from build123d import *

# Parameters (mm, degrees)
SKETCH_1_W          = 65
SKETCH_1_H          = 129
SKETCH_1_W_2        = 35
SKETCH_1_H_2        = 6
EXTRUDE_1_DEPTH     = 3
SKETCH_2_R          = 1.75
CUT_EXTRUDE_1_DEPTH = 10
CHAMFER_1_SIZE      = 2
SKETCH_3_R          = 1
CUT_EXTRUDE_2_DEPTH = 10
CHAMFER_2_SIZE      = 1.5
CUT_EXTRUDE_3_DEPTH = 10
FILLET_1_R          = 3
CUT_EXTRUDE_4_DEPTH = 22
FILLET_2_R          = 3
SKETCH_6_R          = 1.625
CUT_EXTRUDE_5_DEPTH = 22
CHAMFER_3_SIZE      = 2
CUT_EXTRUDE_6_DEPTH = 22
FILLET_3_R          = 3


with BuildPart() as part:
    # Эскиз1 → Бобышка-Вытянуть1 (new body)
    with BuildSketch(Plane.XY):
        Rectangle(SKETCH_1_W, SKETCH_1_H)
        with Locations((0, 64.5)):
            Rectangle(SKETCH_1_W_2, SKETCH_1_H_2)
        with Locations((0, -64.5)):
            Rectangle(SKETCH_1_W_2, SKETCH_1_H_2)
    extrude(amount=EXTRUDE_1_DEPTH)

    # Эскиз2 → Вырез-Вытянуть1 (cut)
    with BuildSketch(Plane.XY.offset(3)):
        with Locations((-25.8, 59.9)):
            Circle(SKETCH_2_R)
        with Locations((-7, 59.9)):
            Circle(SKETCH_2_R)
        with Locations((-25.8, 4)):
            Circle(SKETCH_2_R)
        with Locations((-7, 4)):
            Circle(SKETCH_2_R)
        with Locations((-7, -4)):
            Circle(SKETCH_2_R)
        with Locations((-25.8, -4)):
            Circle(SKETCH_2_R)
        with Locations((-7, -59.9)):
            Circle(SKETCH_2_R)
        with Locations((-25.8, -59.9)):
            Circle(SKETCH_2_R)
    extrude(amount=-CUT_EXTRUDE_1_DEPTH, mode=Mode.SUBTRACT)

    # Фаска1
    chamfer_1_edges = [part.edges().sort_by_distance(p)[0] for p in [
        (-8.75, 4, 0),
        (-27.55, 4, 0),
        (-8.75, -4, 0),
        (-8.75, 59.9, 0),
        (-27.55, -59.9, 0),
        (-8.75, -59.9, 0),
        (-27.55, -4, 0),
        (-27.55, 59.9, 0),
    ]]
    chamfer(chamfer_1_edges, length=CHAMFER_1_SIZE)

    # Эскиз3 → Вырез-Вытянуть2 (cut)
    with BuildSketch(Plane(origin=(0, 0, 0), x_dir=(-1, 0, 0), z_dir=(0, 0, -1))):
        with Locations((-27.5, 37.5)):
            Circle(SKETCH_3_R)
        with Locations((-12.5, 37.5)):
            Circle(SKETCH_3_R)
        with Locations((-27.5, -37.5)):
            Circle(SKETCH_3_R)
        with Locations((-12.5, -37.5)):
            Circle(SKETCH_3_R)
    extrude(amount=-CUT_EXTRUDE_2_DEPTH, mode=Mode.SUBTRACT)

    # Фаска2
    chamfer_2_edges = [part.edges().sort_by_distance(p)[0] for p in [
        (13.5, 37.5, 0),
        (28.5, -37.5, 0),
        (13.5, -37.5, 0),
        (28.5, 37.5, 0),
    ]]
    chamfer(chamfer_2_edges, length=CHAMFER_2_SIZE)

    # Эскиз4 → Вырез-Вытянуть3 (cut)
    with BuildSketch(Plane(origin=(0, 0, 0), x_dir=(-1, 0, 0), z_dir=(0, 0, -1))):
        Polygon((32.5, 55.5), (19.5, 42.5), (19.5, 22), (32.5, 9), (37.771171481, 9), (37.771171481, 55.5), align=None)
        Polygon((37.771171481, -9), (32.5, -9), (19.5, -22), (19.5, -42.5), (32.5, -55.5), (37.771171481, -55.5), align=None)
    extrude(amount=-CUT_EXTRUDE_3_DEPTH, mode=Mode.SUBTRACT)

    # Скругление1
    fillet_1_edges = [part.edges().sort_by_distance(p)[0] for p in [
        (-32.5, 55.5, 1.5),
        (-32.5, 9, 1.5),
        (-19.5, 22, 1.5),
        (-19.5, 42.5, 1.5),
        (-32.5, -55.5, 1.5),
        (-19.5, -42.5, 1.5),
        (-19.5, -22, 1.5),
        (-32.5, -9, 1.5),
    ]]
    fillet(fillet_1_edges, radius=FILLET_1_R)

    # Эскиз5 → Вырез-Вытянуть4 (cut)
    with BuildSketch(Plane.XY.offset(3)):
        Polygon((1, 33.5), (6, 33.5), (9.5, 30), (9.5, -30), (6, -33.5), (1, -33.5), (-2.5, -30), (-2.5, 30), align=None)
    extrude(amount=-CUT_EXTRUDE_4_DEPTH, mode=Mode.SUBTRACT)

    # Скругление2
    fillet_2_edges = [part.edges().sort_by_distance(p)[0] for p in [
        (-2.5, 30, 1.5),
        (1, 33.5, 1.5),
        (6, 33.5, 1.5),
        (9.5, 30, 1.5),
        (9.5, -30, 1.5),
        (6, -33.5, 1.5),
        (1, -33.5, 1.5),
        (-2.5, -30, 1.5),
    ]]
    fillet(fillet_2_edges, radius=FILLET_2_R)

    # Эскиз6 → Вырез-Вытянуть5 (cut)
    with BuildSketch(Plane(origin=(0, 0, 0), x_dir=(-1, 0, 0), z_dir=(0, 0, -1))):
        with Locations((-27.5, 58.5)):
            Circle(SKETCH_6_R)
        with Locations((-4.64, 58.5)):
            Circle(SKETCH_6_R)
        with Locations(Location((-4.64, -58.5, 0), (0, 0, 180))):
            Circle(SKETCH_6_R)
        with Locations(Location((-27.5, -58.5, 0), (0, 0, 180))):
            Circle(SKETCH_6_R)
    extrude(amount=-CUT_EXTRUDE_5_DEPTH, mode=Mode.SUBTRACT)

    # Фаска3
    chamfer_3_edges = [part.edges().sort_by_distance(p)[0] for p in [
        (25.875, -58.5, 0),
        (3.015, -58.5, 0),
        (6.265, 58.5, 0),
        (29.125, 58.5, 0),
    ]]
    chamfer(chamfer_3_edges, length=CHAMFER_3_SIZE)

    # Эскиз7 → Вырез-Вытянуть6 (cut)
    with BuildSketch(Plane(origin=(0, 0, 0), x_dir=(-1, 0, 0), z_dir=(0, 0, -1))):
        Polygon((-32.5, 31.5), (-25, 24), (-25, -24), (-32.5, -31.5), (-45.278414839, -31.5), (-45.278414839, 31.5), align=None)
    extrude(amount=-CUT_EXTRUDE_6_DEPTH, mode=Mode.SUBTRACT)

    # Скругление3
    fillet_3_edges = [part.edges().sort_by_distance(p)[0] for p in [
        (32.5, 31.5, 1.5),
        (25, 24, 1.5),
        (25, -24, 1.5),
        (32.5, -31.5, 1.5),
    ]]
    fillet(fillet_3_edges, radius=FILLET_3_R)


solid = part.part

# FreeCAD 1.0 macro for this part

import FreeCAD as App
import Part
import Sketcher

V = App.Vector


def edges_at(feature, points):
    """Names of the edges that pass closest to the given points."""
    edges = feature.Shape.Edges
    near = lambda p: min(range(len(edges)), key=lambda i: edges[i].distToShape(Part.Vertex(*p))[0])
    return sorted({f"Edge{near(p) + 1}" for p in points})


def add_polygon(sketch, points):
    """Adds a closed chain of lines whose ends are joined by coincident constraints."""
    first, n = sketch.GeometryCount, len(points)
    for a, b in zip(points, points[1:] + points[:1]):
        sketch.addGeometry(Part.LineSegment(App.Vector(*a, 0), App.Vector(*b, 0)), False)
    for i in range(n):
        sketch.addConstraint(Sketcher.Constraint("Coincident", first + i, 2, first + (i + 1) % n, 1))

doc = App.newDocument("Part")
body = doc.addObject("PartDesign::Body", "Body")

sketch1 = doc.addObject("Sketcher::SketchObject", "Sketch")
body.addObject(sketch1)
sketch1.AttachmentSupport = (doc.XY_Plane, [""])
sketch1.MapMode = "FlatFace"
add_polygon(sketch1, [(-32.5, 64.5), (-32.5, -64.5), (-17.5, -64.5), (-17.5, -67.5), (17.5, -67.5), (17.5, -64.5), (32.5, -64.5), (32.5, 64.5), (17.5, 64.5), (17.5, 67.5), (-17.5, 67.5), (-17.5, 64.5)])
sketch1.addConstraint([
    Sketcher.Constraint("Vertical", 0),
    Sketcher.Constraint("Horizontal", 1),
    Sketcher.Constraint("Vertical", 2),
    Sketcher.Constraint("Horizontal", 3),
    Sketcher.Constraint("Vertical", 4),
    Sketcher.Constraint("Horizontal", 5),
    Sketcher.Constraint("Vertical", 6),
    Sketcher.Constraint("Horizontal", 7),
    Sketcher.Constraint("Vertical", 8),
    Sketcher.Constraint("Horizontal", 9),
    Sketcher.Constraint("Vertical", 10),
    Sketcher.Constraint("Horizontal", 11),
    Sketcher.Constraint("Symmetric", 0, 2, 6, 2, -1, 1),
    Sketcher.Constraint("Symmetric", 2, 2, 8, 2, -1, 1),
    Sketcher.Constraint("Symmetric", 4, 2, 10, 2, -1, 1),
    Sketcher.Constraint("Symmetric", 1, 2, 4, 2, -2),
    Sketcher.Constraint("DistanceX", 1, 1, 1, 2, 15.0),
    Sketcher.Constraint("DistanceX", 3, 1, 3, 2, 35.0),
    Sketcher.Constraint("DistanceY", 0, 2, 0, 1, 129.0),
    Sketcher.Constraint("DistanceY", 2, 2, 2, 1, 3.0),
])
pad1 = doc.addObject("PartDesign::Pad", "Pad")
body.addObject(pad1)
pad1.Profile = sketch1
pad1.Length = 3

sketch2 = doc.addObject("Sketcher::SketchObject", "Sketch001")
body.addObject(sketch2)
sketch2.AttachmentSupport = (doc.XY_Plane, [""])
sketch2.MapMode = "FlatFace"
sketch2.AttachmentOffset = App.Placement(V(0, 0, 3), App.Rotation())
sketch2.addGeometry([
    Part.Circle(V(-25.8, 59.9, 0), V(0, 0, 1), 1.8),
    Part.Circle(V(-7, 59.9, 0), V(0, 0, 1), 1.8),
    Part.Circle(V(-25.8, 4, 0), V(0, 0, 1), 1.8),
    Part.Circle(V(-7, 4, 0), V(0, 0, 1), 1.8),
    Part.Circle(V(-7, -4, 0), V(0, 0, 1), 1.8),
    Part.Circle(V(-25.8, -4, 0), V(0, 0, 1), 1.8),
    Part.Circle(V(-7, -59.9, 0), V(0, 0, 1), 1.8),
    Part.Circle(V(-25.8, -59.9, 0), V(0, 0, 1), 1.8),
], False)
sketch2.addConstraint([
    Sketcher.Constraint("Equal", 0, 1),
    Sketcher.Constraint("Equal", 1, 2),
    Sketcher.Constraint("Equal", 2, 3),
    Sketcher.Constraint("Equal", 3, 4),
    Sketcher.Constraint("Equal", 4, 5),
    Sketcher.Constraint("Equal", 5, 6),
    Sketcher.Constraint("Equal", 6, 7),
    Sketcher.Constraint("Symmetric", 3, 3, 4, 3, -1),
    Sketcher.Constraint("Symmetric", 2, 3, 5, 3, -1),
    Sketcher.Constraint("Symmetric", 1, 3, 6, 3, -1),
    Sketcher.Constraint("Symmetric", 0, 3, 7, 3, -1),
    Sketcher.Constraint("Horizontal", 0, 3, 1, 3),
    Sketcher.Constraint("Horizontal", 2, 3, 3, 3),
    Sketcher.Constraint("Vertical", 0, 3, 2, 3),
    Sketcher.Constraint("Vertical", 1, 3, 3, 3),
    Sketcher.Constraint("Diameter", 0, 3.5),
    Sketcher.Constraint("DistanceX", 1, 3, -1, 1, 7.0),
    Sketcher.Constraint("DistanceY", -1, 1, 2, 3, 4.0),
    Sketcher.Constraint("DistanceX", 0, 3, -1, 1, 25.8),
    Sketcher.Constraint("DistanceY", -1, 1, 0, 3, 59.9),
])
pocket1 = doc.addObject("PartDesign::Pocket", "Pocket")
body.addObject(pocket1)
pocket1.Profile = sketch2
pocket1.Length = 10
doc.recompute()

chamfer = doc.addObject("PartDesign::Chamfer", "Chamfer")
body.addObject(chamfer)
chamfer.Base = (pocket1, edges_at(pocket1, [
    (-8.75, 4, 0),
    (-27.55, 4, 0),
    (-8.75, -4, 0),
    (-8.75, 59.9, 0),
    (-27.55, -59.9, 0),
    (-8.75, -59.9, 0),
    (-27.55, -4, 0),
    (-27.55, 59.9, 0),
]))
chamfer.Size = 2

sketch3 = doc.addObject("Sketcher::SketchObject", "Sketch002")
body.addObject(sketch3)
sketch3.AttachmentSupport = (doc.XY_Plane, [""])
sketch3.MapMode = "FlatFace"
sketch3.addGeometry([
    Part.Circle(V(27.5, 37.5, 0), V(0, 0, 1), 1),
    Part.Circle(V(12.5, 37.5, 0), V(0, 0, 1), 1),
    Part.Circle(V(27.5, -37.5, 0), V(0, 0, 1), 1),
    Part.Circle(V(12.5, -37.5, 0), V(0, 0, 1), 1),
], False)
sketch3.addConstraint([
    Sketcher.Constraint("Equal", 0, 1),
    Sketcher.Constraint("Equal", 1, 2),
    Sketcher.Constraint("Equal", 2, 3),
    Sketcher.Constraint("Symmetric", 0, 3, 2, 3, -1),
    Sketcher.Constraint("Symmetric", 1, 3, 3, 3, -1),
    Sketcher.Constraint("Horizontal", 0, 3, 1, 3),
    Sketcher.Constraint("Diameter", 0, 2.0),
    Sketcher.Constraint("DistanceX", 1, 3, 0, 3, 15.0),
    Sketcher.Constraint("DistanceY", 2, 3, 0, 3, 75.0),
    Sketcher.Constraint("DistanceX", -1, 1, 0, 3, 27.5),
])
pocket2 = doc.addObject("PartDesign::Pocket", "Pocket001")
body.addObject(pocket2)
pocket2.Profile = sketch3
pocket2.Length = 10
pocket2.Reversed = True
doc.recompute()

chamfer2 = doc.addObject("PartDesign::Chamfer", "Chamfer001")
body.addObject(chamfer2)
chamfer2.Base = (pocket2, edges_at(pocket2, [
    (13.5, 37.5, 0),
    (28.5, -37.5, 0),
    (13.5, -37.5, 0),
    (28.5, 37.5, 0),
]))
chamfer2.Size = 1.5

sketch4 = doc.addObject("Sketcher::SketchObject", "Sketch003")
body.addObject(sketch4)
sketch4.AttachmentSupport = (doc.XY_Plane, [""])
sketch4.MapMode = "FlatFace"
add_polygon(sketch4, [(-32, 56), (-20, 42), (-20, 22), (-32, 9), (-38, 9), (-38, 56)])
add_polygon(sketch4, [(-38, -9), (-32, -9), (-20, -22), (-20, -42), (-32, -56), (-38, -56)])
sketch4.addConstraint([
    Sketcher.Constraint("Vertical", 1),
    Sketcher.Constraint("Horizontal", 3),
    Sketcher.Constraint("Vertical", 4),
    Sketcher.Constraint("Horizontal", 5),
    Sketcher.Constraint("Horizontal", 6),
    Sketcher.Constraint("Vertical", 8),
    Sketcher.Constraint("Horizontal", 10),
    Sketcher.Constraint("Vertical", 11),
    Sketcher.Constraint("Symmetric", 2, 2, 6, 2, -1),
    Sketcher.Constraint("Symmetric", 1, 2, 7, 2, -1),
    Sketcher.Constraint("Symmetric", 5, 2, 9, 2, -1),
    Sketcher.Constraint("Perpendicular", 0, 2),
    Sketcher.Constraint("Perpendicular", 2, 7),
    Sketcher.Constraint("Perpendicular", 7, 9),
    Sketcher.Constraint("Vertical", 2, 2, 5, 2),
    Sketcher.Constraint("Vertical", 4, 2, 10, 2),
    Sketcher.Constraint("DistanceY", 1, 2, 1, 1, 20.5),
    Sketcher.Constraint("DistanceY", 4, 1, 4, 2, 46.5),
    Sketcher.Constraint("DistanceY", -1, 1, 1, 2, 22.0),
    Sketcher.Constraint("DistanceX", 0, 2, -1, 1, 19.5),
    Sketcher.Constraint("DistanceX", 3, 2, 3, 1, 5.271171),
])
pocket3 = doc.addObject("PartDesign::Pocket", "Pocket002")
body.addObject(pocket3)
pocket3.Profile = sketch4
pocket3.Length = 10
pocket3.Reversed = True
doc.recompute()

fillet = doc.addObject("PartDesign::Fillet", "Fillet")
body.addObject(fillet)
fillet.Base = (pocket3, edges_at(pocket3, [
    (-32.5, 55.5, 1.5),
    (-32.5, 9, 1.5),
    (-19.5, 22, 1.5),
    (-19.5, 42.5, 1.5),
    (-32.5, -55.5, 1.5),
    (-19.5, -42.5, 1.5),
    (-19.5, -22, 1.5),
    (-32.5, -9, 1.5),
]))
fillet.Radius = 3

sketch5 = doc.addObject("Sketcher::SketchObject", "Sketch004")
body.addObject(sketch5)
sketch5.AttachmentSupport = (doc.XY_Plane, [""])
sketch5.MapMode = "FlatFace"
sketch5.AttachmentOffset = App.Placement(V(0, 0, 3), App.Rotation())
add_polygon(sketch5, [(6, 33.5), (1, 33.5), (-2.5, 30), (-2.5, -30), (1, -33.5), (6, -33.5), (9.5, -30), (9.5, 30)])
sketch5.addConstraint([
    Sketcher.Constraint("Horizontal", 0),
    Sketcher.Constraint("Vertical", 2),
    Sketcher.Constraint("Horizontal", 4),
    Sketcher.Constraint("Vertical", 6),
    Sketcher.Constraint("Symmetric", 0, 2, 3, 2, -1),
    Sketcher.Constraint("Perpendicular", 1, 3),
    Sketcher.Constraint("Perpendicular", 3, 5),
    Sketcher.Constraint("Perpendicular", 5, 7),
    Sketcher.Constraint("Horizontal", 2, 2, 5, 2),
    Sketcher.Constraint("Horizontal", 1, 2, 6, 2),
    Sketcher.Constraint("Vertical", 4, 2, 7, 2),
    Sketcher.Constraint("DistanceX", 0, 2, 0, 1, 5.0),
    Sketcher.Constraint("DistanceY", 2, 2, 2, 1, 60.0),
    Sketcher.Constraint("DistanceX", -1, 1, 0, 2, 1.0),
    Sketcher.Constraint("DistanceY", 3, 2, 0, 2, 67.0),
])
pocket4 = doc.addObject("PartDesign::Pocket", "Pocket003")
body.addObject(pocket4)
pocket4.Profile = sketch5
pocket4.Length = 22
doc.recompute()

fillet2 = doc.addObject("PartDesign::Fillet", "Fillet001")
body.addObject(fillet2)
fillet2.Base = (pocket4, edges_at(pocket4, [
    (-2.5, 30, 1.5),
    (1, 33.5, 1.5),
    (6, 33.5, 1.5),
    (9.5, 30, 1.5),
    (9.5, -30, 1.5),
    (6, -33.5, 1.5),
    (1, -33.5, 1.5),
    (-2.5, -30, 1.5),
]))
fillet2.Radius = 3

sketch6 = doc.addObject("Sketcher::SketchObject", "Sketch005")
body.addObject(sketch6)
sketch6.AttachmentSupport = (doc.XY_Plane, [""])
sketch6.MapMode = "FlatFace"
sketch6.addGeometry([
    Part.Circle(V(27.5, 58.5, 0), V(0, 0, 1), 1.6),
    Part.Circle(V(4.6, 58.5, 0), V(0, 0, 1), 1.6),
    Part.Circle(V(4.6, -58.5, 0), V(0, 0, 1), 1.6),
    Part.Circle(V(27.5, -58.5, 0), V(0, 0, 1), 1.6),
], False)
sketch6.addConstraint([
    Sketcher.Constraint("Equal", 0, 1),
    Sketcher.Constraint("Equal", 1, 2),
    Sketcher.Constraint("Equal", 2, 3),
    Sketcher.Constraint("Symmetric", 1, 3, 2, 3, -1),
    Sketcher.Constraint("Symmetric", 0, 3, 3, 3, -1),
    Sketcher.Constraint("Horizontal", 0, 3, 1, 3),
    Sketcher.Constraint("Diameter", 0, 3.25),
    Sketcher.Constraint("DistanceY", 2, 3, 1, 3, 117.0),
    Sketcher.Constraint("DistanceX", -1, 1, 0, 3, 27.5),
    Sketcher.Constraint("DistanceX", -1, 1, 1, 3, 4.64),
])
pocket5 = doc.addObject("PartDesign::Pocket", "Pocket004")
body.addObject(pocket5)
pocket5.Profile = sketch6
pocket5.Length = 22
pocket5.Reversed = True
doc.recompute()

chamfer3 = doc.addObject("PartDesign::Chamfer", "Chamfer002")
body.addObject(chamfer3)
chamfer3.Base = (pocket5, edges_at(pocket5, [
    (25.875, -58.5, 0),
    (3.015, -58.5, 0),
    (6.265, 58.5, 0),
    (29.125, 58.5, 0),
]))
chamfer3.Size = 2

sketch7 = doc.addObject("Sketcher::SketchObject", "Sketch006")
body.addObject(sketch7)
sketch7.AttachmentSupport = (doc.XY_Plane, [""])
sketch7.MapMode = "FlatFace"
add_polygon(sketch7, [(25, 24), (32, 32), (45, 32), (45, -32), (32, -32), (25, -24)])
sketch7.addConstraint([
    Sketcher.Constraint("Horizontal", 1),
    Sketcher.Constraint("Vertical", 2),
    Sketcher.Constraint("Horizontal", 3),
    Sketcher.Constraint("Vertical", 5),
    Sketcher.Constraint("Symmetric", 0, 2, 3, 2, -1),
    Sketcher.Constraint("Perpendicular", 0, 4),
    Sketcher.Constraint("Equal", 0, 4),
    Sketcher.Constraint("DistanceY", 2, 2, 2, 1, 63.0),
    Sketcher.Constraint("DistanceY", 5, 1, 5, 2, 48.0),
    Sketcher.Constraint("DistanceX", -1, 1, 4, 2, 25.0),
    Sketcher.Constraint("DistanceX", 1, 1, 1, 2, 12.778415),
])
pocket6 = doc.addObject("PartDesign::Pocket", "Pocket005")
body.addObject(pocket6)
pocket6.Profile = sketch7
pocket6.Length = 22
pocket6.Reversed = True
doc.recompute()

fillet3 = doc.addObject("PartDesign::Fillet", "Fillet002")
body.addObject(fillet3)
fillet3.Base = (pocket6, edges_at(pocket6, [
    (32.5, 31.5, 1.5),
    (25, 24, 1.5),
    (25, -24, 1.5),
    (32.5, -31.5, 1.5),
]))
fillet3.Radius = 3

doc.recompute()
